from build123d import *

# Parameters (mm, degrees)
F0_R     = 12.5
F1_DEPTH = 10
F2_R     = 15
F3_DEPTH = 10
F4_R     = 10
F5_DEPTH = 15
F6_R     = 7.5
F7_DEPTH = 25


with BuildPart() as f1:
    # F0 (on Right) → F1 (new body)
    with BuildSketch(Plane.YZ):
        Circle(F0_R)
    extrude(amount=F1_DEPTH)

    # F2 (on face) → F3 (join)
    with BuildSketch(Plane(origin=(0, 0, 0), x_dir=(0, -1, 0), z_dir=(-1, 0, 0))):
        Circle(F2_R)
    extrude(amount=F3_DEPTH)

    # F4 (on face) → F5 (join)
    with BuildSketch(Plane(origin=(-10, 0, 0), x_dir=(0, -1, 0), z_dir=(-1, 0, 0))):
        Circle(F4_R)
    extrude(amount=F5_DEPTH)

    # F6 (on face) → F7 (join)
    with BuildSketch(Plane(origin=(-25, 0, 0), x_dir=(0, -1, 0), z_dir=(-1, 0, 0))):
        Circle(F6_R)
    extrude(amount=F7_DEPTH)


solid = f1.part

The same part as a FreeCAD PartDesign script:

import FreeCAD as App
import Part
import Sketcher
from FreeCAD import Vector
Q = App.Units.Quantity

doc = App.newDocument("Part")
params = doc.addObject("Spreadsheet::Sheet", "Params")
for row, (alias, value) in enumerate([
    ("sketch1_diameter", "25 mm"),
    ("pad1_length", "10 mm"),
    ("sketch2_diameter", "30 mm"),
    ("pad2_length", "10 mm"),
    ("sketch3_diameter", "20 mm"),
    ("pad3_length", "15 mm"),
    ("sketch4_diameter", "15 mm"),
    ("pad4_length", "25 mm"),
], start=1):
    params.set(f"A{row}", alias)
    params.set(f"B{row}", "=" + value)
    params.setAlias(f"B{row}", alias)

body = doc.addObject("PartDesign::Body", "Body")

sketch1 = body.newObject("Sketcher::SketchObject", "Sketch")
sketch1.AttachmentSupport = (doc.getObject("YZ_Plane"), [""])
sketch1.MapMode = "FlatFace"
sketch1.addGeometry(Part.Circle(Vector(0, 0, 0), Vector(0, 0, 1), 12.5), False)
sketch1.addConstraint([
    Sketcher.Constraint("Coincident", 0, 3, -1, 1),
    Sketcher.Constraint("Diameter", 0, Q("25 mm")),
])
sketch1.setExpression("Constraints[1]", "Params.sketch1_diameter")
pad1 = body.newObject("PartDesign::Pad", "Pad")
pad1.Profile = sketch1
pad1.setExpression("Length", "Params.pad1_length")

sketch2 = body.newObject("Sketcher::SketchObject", "Sketch001")
sketch2.AttachmentSupport = (doc.getObject("YZ_Plane"), [""])
sketch2.MapMode = "FlatFace"
sketch2.addGeometry(Part.Circle(Vector(0, 0, 0), Vector(0, 0, 1), 15), False)
sketch2.addConstraint([
    Sketcher.Constraint("Coincident", 0, 3, -1, 1),
    Sketcher.Constraint("Diameter", 0, Q("30 mm")),
])
sketch2.setExpression("Constraints[1]", "Params.sketch2_diameter")
pad2 = body.newObject("PartDesign::Pad", "Pad001")
pad2.Profile = sketch2
pad2.setExpression("Length", "Params.pad2_length")
pad2.Reversed = True

sketch3 = body.newObject("Sketcher::SketchObject", "Sketch002")
sketch3.AttachmentSupport = (doc.getObject("YZ_Plane"), [""])
sketch3.MapMode = "FlatFace"
sketch3.AttachmentOffset = App.Placement(Vector(0, 0, -10), App.Rotation())
sketch3.addGeometry(Part.Circle(Vector(0, 0, 0), Vector(0, 0, 1), 10), False)
sketch3.addConstraint([
    Sketcher.Constraint("Coincident", 0, 3, -1, 1),
    Sketcher.Constraint("Diameter", 0, Q("20 mm")),
])
sketch3.setExpression("Constraints[1]", "Params.sketch3_diameter")
pad3 = body.newObject("PartDesign::Pad", "Pad002")
pad3.Profile = sketch3
pad3.setExpression("Length", "Params.pad3_length")
pad3.Reversed = True

sketch4 = body.newObject("Sketcher::SketchObject", "Sketch003")
sketch4.AttachmentSupport = (doc.getObject("YZ_Plane"), [""])
sketch4.MapMode = "FlatFace"
sketch4.AttachmentOffset = App.Placement(Vector(0, 0, -25), App.Rotation())
sketch4.addGeometry(Part.Circle(Vector(0, 0, 0), Vector(0, 0, 1), 7.5), False)
sketch4.addConstraint([
    Sketcher.Constraint("Coincident", 0, 3, -1, 1),
    Sketcher.Constraint("Diameter", 0, Q("15 mm")),
])
sketch4.setExpression("Constraints[1]", "Params.sketch4_diameter")
pad4 = body.newObject("PartDesign::Pad", "Pad003")
pad4.Profile = sketch4
pad4.setExpression("Length", "Params.pad4_length")
pad4.Reversed = True

doc.recompute()
